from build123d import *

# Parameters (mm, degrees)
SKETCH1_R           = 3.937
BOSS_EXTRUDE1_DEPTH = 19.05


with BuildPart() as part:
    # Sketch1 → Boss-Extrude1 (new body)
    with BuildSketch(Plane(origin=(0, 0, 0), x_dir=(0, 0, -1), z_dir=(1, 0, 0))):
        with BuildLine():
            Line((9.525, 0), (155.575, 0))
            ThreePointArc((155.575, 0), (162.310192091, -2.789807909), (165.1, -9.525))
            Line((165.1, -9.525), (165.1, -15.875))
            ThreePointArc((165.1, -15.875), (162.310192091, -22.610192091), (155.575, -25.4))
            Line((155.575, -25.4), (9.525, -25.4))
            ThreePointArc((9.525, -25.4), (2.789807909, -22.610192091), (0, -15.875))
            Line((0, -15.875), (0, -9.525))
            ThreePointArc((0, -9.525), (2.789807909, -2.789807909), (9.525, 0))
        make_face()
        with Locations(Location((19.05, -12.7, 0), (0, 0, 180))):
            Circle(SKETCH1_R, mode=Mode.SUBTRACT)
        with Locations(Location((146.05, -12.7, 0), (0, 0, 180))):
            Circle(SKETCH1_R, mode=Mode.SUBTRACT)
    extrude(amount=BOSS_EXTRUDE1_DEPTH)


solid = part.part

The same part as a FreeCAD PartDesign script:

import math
import FreeCAD as App
import Part
import Sketcher

V = App.Vector
Q = App.Units.Quantity

doc = App.newDocument("Part")
body = doc.addObject("PartDesign::Body", "Body")

sketch1 = doc.addObject("Sketcher::SketchObject", "Sketch")
body.addObject(sketch1)
sketch1.AttachmentSupport = (doc.YZ_Plane, [""])
sketch1.MapMode = "FlatFace"
sketch1.addGeometry([
    Part.LineSegment(V(0, -155.575, 0), V(0, -9.525, 0)),
    Part.ArcOfCircle(Part.Circle(V(-9.525, -9.525, 0), V(0, 0, 1), 9.525), math.radians(0), math.radians(90)),
    Part.LineSegment(V(-9.525, 0, 0), V(-15.875, 0, 0)),
    Part.ArcOfCircle(Part.Circle(V(-15.875, -9.525, 0), V(0, 0, 1), 9.525), math.radians(90), math.radians(180)),
    Part.LineSegment(V(-25.4, -9.525, 0), V(-25.4, -155.575, 0)),
    Part.ArcOfCircle(Part.Circle(V(-15.875, -155.575, 0), V(0, 0, 1), 9.525), math.radians(180), math.radians(270)),
    Part.LineSegment(V(-15.875, -165.1, 0), V(-9.525, -165.1, 0)),
    Part.ArcOfCircle(Part.Circle(V(-9.525, -155.575, 0), V(0, 0, 1), 9.525), math.radians(-90), math.radians(0)),
    Part.Circle(V(-12.7, -146.05, 0), V(0, 0, 1), 3.937),
    Part.Circle(V(-12.7, -19.05, 0), V(0, 0, 1), 3.937),
], False)
sketch1.addConstraint([
    Sketcher.Constraint("Tangent", 0, 2, 1, 1),
    Sketcher.Constraint("Tangent", 1, 2, 2, 1),
    Sketcher.Constraint("Tangent", 2, 2, 3, 1),
    Sketcher.Constraint("Tangent", 3, 2, 4, 1),
    Sketcher.Constraint("Tangent", 4, 2, 5, 1),
    Sketcher.Constraint("Tangent", 5, 2, 6, 1),
    Sketcher.Constraint("Tangent", 6, 2, 7, 1),
    Sketcher.Constraint("Tangent", 7, 2, 0, 1),
    Sketcher.Constraint("Vertical", 0),
    Sketcher.Constraint("Horizontal", 2),
    Sketcher.Constraint("Vertical", 4),
    Sketcher.Constraint("Horizontal", 6),
    Sketcher.Constraint("Equal", 1, 3),
    Sketcher.Constraint("Equal", 3, 5),
    Sketcher.Constraint("Equal", 5, 7),
    Sketcher.Constraint("Equal", 8, 9),
    Sketcher.Constraint("PointOnObject", 0, 2, -2),
    Sketcher.Constraint("PointOnObject", 1, 2, -1),
    Sketcher.Constraint("Vertical", 8, 3, 9, 3),
    Sketcher.Constraint("Diameter", 8, Q("0.31 in")),
    Sketcher.Constraint("DistanceX", 3, 2, -1, 1, Q("1 in")),
    Sketcher.Constraint("Radius", 1, Q("0.375 in")),
    Sketcher.Constraint("DistanceY", 8, 3, 9, 3, Q("5 in")),
    Sketcher.Constraint("DistanceY", 0, 1, 0, 2, Q("5.75 in")),
    Sketcher.Constraint("DistanceX", 8, 3, -1, 1, Q("0.5 in")),
    Sketcher.Constraint("DistanceY", 8, 3, -1, 1, Q("5.75 in")),
])
pad1 = doc.addObject("PartDesign::Pad", "Pad")
body.addObject(pad1)
pad1.Profile = sketch1
pad1.Length = Q("0.75 in")

doc.recompute()
